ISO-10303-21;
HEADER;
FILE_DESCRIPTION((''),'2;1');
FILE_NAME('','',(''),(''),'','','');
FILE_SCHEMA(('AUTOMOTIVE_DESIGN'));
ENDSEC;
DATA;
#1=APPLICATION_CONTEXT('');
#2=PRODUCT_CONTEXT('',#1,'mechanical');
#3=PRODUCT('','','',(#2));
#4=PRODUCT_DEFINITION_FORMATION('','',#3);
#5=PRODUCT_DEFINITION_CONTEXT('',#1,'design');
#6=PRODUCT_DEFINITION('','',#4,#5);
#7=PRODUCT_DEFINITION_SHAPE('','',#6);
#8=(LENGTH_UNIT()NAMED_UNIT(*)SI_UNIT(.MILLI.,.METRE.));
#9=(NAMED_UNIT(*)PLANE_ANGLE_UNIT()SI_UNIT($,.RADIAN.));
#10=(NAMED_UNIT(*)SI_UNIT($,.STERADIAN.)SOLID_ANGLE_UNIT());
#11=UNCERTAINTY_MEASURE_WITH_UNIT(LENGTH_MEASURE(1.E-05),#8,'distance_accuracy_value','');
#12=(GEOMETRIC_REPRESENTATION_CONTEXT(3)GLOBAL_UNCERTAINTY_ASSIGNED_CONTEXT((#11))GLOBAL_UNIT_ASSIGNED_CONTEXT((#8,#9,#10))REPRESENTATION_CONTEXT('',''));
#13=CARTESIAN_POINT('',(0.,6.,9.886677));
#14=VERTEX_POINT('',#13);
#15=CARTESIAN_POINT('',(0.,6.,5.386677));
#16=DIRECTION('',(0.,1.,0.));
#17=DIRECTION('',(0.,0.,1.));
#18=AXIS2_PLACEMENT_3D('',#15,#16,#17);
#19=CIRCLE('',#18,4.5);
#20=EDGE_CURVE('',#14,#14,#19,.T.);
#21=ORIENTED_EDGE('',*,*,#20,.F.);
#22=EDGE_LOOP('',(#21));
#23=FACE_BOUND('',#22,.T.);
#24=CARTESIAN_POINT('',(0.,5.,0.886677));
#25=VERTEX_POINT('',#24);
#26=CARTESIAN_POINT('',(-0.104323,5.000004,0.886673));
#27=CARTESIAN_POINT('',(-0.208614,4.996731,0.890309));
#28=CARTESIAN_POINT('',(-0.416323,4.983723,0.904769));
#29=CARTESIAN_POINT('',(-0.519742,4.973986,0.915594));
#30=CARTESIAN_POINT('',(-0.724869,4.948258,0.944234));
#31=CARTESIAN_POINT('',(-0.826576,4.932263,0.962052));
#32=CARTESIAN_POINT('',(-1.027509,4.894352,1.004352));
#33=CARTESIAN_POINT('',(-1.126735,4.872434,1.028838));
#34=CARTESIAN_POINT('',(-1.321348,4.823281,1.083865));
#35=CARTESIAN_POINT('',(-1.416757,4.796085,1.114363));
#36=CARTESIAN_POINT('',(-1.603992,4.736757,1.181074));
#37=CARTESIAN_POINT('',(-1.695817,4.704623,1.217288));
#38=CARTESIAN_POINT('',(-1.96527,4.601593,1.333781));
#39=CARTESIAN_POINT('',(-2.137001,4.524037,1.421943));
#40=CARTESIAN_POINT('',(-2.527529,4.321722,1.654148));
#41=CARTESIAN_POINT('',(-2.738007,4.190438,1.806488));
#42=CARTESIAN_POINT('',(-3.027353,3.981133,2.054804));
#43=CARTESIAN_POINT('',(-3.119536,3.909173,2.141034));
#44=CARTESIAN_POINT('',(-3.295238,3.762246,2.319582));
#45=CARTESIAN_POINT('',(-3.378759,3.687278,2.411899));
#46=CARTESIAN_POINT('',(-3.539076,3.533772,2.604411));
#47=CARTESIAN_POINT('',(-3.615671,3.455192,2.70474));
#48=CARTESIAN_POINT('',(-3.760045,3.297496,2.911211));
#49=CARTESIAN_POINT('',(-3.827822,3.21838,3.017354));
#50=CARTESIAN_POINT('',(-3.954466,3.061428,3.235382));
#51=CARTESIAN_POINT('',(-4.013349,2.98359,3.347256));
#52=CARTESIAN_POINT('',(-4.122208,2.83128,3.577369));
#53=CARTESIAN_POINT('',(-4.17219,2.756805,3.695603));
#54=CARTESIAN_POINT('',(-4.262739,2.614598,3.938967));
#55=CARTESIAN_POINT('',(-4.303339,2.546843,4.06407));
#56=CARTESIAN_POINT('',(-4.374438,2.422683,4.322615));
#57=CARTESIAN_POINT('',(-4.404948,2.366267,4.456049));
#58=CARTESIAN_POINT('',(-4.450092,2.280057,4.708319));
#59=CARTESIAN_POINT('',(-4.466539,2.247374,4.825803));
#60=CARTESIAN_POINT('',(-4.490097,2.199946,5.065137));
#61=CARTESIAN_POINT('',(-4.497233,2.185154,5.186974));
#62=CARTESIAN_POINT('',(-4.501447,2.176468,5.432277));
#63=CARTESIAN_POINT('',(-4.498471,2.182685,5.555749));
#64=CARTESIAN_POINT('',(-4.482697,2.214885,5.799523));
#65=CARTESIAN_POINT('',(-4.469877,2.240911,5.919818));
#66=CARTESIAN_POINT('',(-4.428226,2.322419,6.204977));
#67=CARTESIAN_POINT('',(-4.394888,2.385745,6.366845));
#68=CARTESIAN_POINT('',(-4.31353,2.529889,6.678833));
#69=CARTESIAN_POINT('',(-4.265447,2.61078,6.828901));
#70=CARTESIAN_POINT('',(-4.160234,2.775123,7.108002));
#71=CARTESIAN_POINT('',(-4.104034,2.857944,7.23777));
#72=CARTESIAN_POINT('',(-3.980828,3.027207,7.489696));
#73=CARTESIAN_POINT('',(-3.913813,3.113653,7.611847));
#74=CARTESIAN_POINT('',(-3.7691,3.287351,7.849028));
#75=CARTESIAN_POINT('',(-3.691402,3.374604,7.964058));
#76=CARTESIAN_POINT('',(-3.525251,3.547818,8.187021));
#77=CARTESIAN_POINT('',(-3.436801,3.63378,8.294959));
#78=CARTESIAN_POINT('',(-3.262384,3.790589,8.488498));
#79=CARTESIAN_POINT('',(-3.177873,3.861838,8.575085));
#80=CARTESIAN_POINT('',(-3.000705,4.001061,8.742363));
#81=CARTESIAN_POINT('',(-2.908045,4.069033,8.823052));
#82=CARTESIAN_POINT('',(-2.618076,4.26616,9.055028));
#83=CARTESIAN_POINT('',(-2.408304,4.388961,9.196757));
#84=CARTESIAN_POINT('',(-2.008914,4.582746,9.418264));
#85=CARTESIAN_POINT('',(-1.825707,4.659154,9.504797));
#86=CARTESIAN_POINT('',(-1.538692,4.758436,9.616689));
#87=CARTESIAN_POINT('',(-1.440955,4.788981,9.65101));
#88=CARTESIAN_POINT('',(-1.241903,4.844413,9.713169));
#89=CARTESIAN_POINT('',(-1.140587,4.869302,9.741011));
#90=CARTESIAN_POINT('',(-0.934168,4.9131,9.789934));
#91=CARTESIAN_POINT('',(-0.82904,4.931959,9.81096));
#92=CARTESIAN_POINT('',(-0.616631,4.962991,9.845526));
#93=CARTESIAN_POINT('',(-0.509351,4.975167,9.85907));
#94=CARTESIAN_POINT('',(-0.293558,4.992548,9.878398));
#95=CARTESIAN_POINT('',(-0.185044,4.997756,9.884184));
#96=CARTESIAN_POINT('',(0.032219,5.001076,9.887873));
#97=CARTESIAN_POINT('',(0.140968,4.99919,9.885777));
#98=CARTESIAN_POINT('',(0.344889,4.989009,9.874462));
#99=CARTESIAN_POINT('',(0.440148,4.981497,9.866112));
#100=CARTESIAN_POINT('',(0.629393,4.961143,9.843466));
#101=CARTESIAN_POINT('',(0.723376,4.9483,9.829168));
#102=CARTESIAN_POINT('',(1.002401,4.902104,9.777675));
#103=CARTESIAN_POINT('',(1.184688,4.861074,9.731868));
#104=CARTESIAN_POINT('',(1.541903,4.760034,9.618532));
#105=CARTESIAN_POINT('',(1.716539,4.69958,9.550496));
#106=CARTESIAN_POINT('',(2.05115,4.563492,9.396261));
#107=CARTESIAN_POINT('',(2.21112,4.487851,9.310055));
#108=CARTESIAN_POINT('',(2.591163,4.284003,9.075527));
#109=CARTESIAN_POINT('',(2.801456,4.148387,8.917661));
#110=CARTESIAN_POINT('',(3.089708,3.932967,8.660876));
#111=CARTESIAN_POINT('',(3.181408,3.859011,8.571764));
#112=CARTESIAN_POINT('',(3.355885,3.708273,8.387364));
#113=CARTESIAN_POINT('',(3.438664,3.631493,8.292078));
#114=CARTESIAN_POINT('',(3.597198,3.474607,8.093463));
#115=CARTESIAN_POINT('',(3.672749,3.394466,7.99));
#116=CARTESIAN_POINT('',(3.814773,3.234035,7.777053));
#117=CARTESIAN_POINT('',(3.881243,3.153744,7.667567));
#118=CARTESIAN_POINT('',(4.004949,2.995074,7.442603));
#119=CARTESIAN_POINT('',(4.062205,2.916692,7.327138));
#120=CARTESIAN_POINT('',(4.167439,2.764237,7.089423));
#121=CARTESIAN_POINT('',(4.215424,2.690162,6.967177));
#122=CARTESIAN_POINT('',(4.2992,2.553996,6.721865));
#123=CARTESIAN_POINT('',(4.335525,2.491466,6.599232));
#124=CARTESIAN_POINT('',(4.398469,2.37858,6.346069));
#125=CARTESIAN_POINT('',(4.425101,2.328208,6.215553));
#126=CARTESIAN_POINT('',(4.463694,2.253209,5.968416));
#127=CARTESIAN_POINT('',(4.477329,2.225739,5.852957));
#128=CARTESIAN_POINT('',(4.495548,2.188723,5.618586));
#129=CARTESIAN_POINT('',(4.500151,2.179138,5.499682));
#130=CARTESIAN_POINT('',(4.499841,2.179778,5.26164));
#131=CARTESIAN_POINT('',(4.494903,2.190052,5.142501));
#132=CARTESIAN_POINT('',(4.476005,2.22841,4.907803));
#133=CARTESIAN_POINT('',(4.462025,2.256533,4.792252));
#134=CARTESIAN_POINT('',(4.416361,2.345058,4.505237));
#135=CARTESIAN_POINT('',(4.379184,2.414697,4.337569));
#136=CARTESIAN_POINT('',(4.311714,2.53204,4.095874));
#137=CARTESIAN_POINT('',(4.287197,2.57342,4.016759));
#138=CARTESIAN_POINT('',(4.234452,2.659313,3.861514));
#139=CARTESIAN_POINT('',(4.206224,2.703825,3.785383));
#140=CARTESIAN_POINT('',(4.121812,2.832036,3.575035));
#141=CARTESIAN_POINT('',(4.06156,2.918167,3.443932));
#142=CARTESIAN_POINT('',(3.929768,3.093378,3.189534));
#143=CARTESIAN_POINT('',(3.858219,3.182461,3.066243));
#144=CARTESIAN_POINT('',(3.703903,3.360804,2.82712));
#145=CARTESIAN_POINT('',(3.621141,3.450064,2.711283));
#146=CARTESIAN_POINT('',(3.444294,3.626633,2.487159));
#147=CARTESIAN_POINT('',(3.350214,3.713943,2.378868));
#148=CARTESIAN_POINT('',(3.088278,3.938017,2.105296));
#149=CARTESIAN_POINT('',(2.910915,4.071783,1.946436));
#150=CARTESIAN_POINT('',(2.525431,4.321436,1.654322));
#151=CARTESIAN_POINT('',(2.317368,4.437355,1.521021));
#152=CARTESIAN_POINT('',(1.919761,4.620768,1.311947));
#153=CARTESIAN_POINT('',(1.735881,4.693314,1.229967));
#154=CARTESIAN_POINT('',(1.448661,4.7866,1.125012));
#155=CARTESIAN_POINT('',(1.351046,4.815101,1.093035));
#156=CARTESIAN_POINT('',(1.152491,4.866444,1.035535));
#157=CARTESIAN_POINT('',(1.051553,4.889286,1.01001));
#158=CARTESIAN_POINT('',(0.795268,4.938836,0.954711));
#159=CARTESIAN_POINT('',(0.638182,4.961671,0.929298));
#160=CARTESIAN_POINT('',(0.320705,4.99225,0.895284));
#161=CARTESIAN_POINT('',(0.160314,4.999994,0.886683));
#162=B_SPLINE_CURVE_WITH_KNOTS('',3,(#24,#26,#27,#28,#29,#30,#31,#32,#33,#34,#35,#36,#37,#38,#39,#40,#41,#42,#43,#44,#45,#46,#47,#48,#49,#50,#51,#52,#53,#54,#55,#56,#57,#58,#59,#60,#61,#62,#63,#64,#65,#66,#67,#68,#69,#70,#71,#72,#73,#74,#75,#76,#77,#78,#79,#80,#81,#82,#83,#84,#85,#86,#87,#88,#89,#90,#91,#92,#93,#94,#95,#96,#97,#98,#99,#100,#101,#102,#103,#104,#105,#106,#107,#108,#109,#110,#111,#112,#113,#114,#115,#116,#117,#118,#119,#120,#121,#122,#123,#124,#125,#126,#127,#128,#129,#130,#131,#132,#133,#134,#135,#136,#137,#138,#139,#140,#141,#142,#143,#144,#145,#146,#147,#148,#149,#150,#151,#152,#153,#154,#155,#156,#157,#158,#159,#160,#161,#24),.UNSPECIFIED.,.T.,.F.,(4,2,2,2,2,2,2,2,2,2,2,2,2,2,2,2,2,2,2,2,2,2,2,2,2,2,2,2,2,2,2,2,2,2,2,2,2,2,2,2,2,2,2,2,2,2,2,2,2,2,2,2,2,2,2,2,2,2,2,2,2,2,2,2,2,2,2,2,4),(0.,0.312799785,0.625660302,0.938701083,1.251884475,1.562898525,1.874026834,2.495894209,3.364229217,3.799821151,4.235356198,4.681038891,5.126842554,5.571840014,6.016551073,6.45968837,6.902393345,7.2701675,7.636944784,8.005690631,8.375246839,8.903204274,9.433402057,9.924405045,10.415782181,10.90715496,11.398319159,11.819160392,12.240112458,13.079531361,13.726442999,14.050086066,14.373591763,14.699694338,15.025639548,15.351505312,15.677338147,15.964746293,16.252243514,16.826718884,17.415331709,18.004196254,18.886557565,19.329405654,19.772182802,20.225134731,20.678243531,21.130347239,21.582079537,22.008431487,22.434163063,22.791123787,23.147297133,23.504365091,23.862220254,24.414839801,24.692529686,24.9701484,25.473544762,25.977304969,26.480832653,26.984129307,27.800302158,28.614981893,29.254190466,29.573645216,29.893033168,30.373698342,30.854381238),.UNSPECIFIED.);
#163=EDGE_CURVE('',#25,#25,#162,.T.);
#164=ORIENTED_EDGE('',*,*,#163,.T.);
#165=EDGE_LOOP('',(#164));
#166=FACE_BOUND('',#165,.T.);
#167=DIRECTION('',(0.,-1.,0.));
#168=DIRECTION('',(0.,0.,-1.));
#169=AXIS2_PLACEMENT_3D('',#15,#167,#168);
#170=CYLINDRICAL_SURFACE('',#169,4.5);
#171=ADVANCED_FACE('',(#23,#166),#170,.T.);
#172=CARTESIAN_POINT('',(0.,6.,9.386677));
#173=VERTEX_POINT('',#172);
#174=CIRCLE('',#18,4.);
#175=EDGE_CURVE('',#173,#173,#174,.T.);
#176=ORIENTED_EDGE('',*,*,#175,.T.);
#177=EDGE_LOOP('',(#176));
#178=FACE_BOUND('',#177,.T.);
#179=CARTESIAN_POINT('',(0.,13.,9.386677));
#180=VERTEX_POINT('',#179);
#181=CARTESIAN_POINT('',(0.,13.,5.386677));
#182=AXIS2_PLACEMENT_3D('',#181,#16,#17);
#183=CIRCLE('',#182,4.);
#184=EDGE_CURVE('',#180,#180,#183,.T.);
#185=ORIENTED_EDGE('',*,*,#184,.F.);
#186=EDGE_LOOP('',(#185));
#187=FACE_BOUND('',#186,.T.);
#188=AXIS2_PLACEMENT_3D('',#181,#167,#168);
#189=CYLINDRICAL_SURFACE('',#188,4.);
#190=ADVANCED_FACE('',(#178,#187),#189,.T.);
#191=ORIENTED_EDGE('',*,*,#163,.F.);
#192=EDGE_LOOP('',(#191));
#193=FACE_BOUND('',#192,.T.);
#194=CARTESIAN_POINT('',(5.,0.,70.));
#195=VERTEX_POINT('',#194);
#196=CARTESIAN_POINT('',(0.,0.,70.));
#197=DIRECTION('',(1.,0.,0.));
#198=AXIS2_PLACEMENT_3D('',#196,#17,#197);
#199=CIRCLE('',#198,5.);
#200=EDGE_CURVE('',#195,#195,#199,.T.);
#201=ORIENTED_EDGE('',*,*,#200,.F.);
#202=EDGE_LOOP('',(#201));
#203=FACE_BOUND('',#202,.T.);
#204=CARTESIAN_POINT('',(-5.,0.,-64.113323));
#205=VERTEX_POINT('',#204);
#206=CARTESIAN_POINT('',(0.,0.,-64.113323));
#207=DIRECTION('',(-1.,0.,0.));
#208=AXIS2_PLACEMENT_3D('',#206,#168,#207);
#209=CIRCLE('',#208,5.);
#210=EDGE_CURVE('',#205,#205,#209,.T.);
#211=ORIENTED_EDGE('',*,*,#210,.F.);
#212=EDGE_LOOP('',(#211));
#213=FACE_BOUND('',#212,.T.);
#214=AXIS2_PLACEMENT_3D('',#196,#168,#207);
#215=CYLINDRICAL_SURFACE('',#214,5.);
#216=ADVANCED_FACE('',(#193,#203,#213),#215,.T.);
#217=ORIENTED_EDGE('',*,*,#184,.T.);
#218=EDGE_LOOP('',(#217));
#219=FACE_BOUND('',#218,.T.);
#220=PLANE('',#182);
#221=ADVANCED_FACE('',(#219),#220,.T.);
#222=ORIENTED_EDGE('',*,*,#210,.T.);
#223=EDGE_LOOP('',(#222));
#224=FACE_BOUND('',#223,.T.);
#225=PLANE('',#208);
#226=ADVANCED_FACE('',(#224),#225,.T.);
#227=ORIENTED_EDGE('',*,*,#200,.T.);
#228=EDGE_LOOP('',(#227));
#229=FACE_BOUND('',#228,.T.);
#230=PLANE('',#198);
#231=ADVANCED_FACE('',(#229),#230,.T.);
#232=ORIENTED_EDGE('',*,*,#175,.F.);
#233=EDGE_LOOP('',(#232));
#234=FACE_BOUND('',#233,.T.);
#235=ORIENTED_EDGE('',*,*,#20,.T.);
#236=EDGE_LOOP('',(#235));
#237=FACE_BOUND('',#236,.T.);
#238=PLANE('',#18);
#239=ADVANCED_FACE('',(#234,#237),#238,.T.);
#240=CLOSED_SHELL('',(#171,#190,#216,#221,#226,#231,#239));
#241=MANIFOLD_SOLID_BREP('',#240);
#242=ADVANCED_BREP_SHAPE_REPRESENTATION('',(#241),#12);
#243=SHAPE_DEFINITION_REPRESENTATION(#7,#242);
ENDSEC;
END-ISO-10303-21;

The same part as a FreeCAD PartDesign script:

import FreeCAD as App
import Part
import Sketcher
from FreeCAD import Vector

doc = App.newDocument("Part")
body = doc.addObject("PartDesign::Body", "Body")

sketch1 = body.newObject("Sketcher::SketchObject", "Sketch")
sketch1.AttachmentSupport = (doc.getObject("XY_Plane"), [""])
sketch1.MapMode = "FlatFace"
sketch1.addGeometry(Part.Circle(Vector(0, 0, 0), Vector(0, 0, 1), 5), False)
sketch1.addConstraint([
    Sketcher.Constraint("Coincident", 0, 3, -1, 1),
    Sketcher.Constraint("Diameter", 0, 10.0),
])
pad1 = body.newObject("PartDesign::Pad", "Pad")
pad1.Profile = sketch1
pad1.Length = 70

sketch2 = body.newObject("Sketcher::SketchObject", "Sketch001")
sketch2.AttachmentSupport = (doc.getObject("XZ_Plane"), [""])
sketch2.MapMode = "FlatFace"
sketch2.addGeometry(Part.Circle(Vector(0, 5.4, 0), Vector(0, 0, 1), 4.5), False)
sketch2.addConstraint([
    Sketcher.Constraint("PointOnObject", 0, 3, -2),
    Sketcher.Constraint("Diameter", 0, 9.0),
    Sketcher.Constraint("DistanceY", -1, 1, 0, 3, 5.386677),
])
pad2 = body.newObject("PartDesign::Pad", "Pad001")
pad2.Profile = sketch2
pad2.Length = 6
pad2.Reversed = True

sketch3 = body.newObject("Sketcher::SketchObject", "Sketch002")
sketch3.AttachmentSupport = (doc.getObject("XY_Plane"), [""])
sketch3.MapMode = "FlatFace"
sketch3.addGeometry(Part.Circle(Vector(0, 0, 0), Vector(0, 0, 1), 5), False)
sketch3.addConstraint([
    Sketcher.Constraint("Coincident", 0, 3, -1, 1),
    Sketcher.Constraint("Diameter", 0, 10.0),
])
pocket1 = body.newObject("PartDesign::Pocket", "Pocket")
pocket1.Profile = sketch3
pocket1.Length = 0.886677
pocket1.Reversed = True

sketch4 = body.newObject("Sketcher::SketchObject", "Sketch003")
sketch4.AttachmentSupport = (doc.getObject("XZ_Plane"), [""])
sketch4.MapMode = "FlatFace"
sketch4.AttachmentOffset = App.Placement(Vector(0, 0, -6), App.Rotation())
sketch4.addGeometry(Part.Circle(Vector(0, 5.4, 0), Vector(0, 0, 1), 4), False)
sketch4.addConstraint([
    Sketcher.Constraint("PointOnObject", 0, 3, -2),
    Sketcher.Constraint("Diameter", 0, 8.0),
    Sketcher.Constraint("DistanceY", -1, 1, 0, 3, 5.386677),
])
pad3 = body.newObject("PartDesign::Pad", "Pad002")
pad3.Profile = sketch4
pad3.Length = 7
pad3.Reversed = True

sketch5 = body.newObject("Sketcher::SketchObject", "Sketch004")
sketch5.AttachmentSupport = (doc.getObject("XY_Plane"), [""])
sketch5.MapMode = "FlatFace"
sketch5.AttachmentOffset = App.Placement(Vector(0, 0, -64.113323), App.Rotation())
sketch5.addGeometry(Part.Circle(Vector(0, 0, 0), Vector(0, 0, 1), 5), False)
sketch5.addConstraint([
    Sketcher.Constraint("Coincident", 0, 3, -1, 1),
    Sketcher.Constraint("Diameter", 0, 10.0),
])
pad4 = body.newObject("PartDesign::Pad", "Pad003")
pad4.Profile = sketch5
pad4.Length = 65

doc.recompute()
